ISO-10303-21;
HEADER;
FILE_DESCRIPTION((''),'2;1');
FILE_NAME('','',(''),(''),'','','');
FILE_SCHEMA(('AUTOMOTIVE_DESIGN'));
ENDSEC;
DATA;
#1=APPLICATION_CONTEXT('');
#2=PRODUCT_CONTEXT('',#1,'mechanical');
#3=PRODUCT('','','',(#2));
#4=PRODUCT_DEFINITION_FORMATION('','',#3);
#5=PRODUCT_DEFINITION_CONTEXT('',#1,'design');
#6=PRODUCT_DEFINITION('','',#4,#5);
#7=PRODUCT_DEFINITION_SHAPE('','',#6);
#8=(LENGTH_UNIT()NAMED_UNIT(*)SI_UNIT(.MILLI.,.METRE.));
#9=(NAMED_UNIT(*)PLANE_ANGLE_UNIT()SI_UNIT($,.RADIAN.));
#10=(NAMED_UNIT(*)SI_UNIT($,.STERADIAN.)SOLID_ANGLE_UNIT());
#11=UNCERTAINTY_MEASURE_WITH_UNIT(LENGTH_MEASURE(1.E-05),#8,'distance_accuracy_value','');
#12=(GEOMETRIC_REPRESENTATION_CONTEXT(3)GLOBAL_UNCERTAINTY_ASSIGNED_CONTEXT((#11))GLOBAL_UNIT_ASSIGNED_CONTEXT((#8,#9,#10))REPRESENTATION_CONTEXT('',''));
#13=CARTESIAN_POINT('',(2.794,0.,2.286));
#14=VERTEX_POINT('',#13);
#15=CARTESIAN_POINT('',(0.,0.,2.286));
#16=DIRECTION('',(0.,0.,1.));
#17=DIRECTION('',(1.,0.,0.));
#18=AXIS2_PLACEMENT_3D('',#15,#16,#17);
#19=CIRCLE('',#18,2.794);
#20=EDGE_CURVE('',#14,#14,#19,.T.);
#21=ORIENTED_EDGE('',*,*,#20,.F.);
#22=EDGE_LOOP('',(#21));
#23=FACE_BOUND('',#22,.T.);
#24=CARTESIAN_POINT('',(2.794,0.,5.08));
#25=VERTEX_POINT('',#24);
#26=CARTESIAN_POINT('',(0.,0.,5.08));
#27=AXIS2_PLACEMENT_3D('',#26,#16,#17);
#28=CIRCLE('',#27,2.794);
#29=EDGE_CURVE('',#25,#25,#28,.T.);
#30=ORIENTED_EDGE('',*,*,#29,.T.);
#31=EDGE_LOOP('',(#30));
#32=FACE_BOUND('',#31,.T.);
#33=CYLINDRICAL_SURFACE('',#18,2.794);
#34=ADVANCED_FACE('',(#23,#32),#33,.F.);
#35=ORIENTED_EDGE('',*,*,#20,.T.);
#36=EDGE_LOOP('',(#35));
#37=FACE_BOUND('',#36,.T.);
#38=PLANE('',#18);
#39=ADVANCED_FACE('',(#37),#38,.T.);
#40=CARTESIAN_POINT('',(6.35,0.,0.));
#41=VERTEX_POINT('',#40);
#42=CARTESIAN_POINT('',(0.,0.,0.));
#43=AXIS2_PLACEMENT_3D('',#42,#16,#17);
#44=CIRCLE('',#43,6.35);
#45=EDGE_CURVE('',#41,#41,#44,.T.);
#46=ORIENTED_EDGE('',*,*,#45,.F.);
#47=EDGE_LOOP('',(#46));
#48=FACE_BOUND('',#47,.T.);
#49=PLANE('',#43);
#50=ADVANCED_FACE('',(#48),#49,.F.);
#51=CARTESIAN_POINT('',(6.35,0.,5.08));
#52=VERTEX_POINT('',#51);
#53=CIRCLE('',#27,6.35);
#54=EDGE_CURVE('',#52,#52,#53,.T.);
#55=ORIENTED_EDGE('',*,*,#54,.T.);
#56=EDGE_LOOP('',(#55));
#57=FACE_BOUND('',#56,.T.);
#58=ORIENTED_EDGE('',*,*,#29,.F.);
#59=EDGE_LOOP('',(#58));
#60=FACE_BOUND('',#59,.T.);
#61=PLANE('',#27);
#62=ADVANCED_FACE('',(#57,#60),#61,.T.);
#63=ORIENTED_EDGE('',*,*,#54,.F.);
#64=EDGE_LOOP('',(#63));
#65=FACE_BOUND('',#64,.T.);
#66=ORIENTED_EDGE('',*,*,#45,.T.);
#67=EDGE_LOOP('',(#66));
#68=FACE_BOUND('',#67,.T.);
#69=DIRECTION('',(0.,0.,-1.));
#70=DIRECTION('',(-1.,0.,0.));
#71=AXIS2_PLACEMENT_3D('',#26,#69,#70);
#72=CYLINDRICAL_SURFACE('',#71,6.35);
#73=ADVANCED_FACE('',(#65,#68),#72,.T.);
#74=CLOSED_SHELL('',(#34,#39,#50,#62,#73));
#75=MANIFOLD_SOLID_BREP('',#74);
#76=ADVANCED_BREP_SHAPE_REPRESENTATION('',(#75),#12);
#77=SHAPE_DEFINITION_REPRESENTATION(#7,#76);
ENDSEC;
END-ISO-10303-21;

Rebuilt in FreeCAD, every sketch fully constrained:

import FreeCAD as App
import Part
import Sketcher
from FreeCAD import Vector
Q = App.Units.Quantity

doc = App.newDocument("Part")
body = doc.addObject("PartDesign::Body", "Body")

sketch1 = body.newObject("Sketcher::SketchObject", "Sketch")
sketch1.AttachmentSupport = (doc.getObject("XY_Plane"), [""])
sketch1.MapMode = "FlatFace"
sketch1.addGeometry(Part.Circle(Vector(0, 0, 0), Vector(0, 0, 1), 6), False)
sketch1.addConstraint([
    Sketcher.Constraint("Coincident", 0, 3, -1, 1),
    Sketcher.Constraint("Diameter", 0, Q("0.5 in")),
])
pad1 = body.newObject("PartDesign::Pad", "Pad")
pad1.Profile = sketch1
pad1.Length = Q("0.2 in")

sketch2 = body.newObject("Sketcher::SketchObject", "Sketch001")
sketch2.AttachmentSupport = (doc.getObject("XY_Plane"), [""])
sketch2.MapMode = "FlatFace"
sketch2.AttachmentOffset = App.Placement(Vector(0, 0, 0.2 * 25.4), App.Rotation())
sketch2.addGeometry(Part.Circle(Vector(0, 0, 0), Vector(0, 0, 1), 2.8), False)
sketch2.addConstraint([
    Sketcher.Constraint("Coincident", 0, 3, -1, 1),
    Sketcher.Constraint("Diameter", 0, Q("0.22 in")),
])
pocket1 = body.newObject("PartDesign::Pocket", "Pocket")
pocket1.Profile = sketch2
pocket1.Length = Q("0.11 in")

doc.recompute()
